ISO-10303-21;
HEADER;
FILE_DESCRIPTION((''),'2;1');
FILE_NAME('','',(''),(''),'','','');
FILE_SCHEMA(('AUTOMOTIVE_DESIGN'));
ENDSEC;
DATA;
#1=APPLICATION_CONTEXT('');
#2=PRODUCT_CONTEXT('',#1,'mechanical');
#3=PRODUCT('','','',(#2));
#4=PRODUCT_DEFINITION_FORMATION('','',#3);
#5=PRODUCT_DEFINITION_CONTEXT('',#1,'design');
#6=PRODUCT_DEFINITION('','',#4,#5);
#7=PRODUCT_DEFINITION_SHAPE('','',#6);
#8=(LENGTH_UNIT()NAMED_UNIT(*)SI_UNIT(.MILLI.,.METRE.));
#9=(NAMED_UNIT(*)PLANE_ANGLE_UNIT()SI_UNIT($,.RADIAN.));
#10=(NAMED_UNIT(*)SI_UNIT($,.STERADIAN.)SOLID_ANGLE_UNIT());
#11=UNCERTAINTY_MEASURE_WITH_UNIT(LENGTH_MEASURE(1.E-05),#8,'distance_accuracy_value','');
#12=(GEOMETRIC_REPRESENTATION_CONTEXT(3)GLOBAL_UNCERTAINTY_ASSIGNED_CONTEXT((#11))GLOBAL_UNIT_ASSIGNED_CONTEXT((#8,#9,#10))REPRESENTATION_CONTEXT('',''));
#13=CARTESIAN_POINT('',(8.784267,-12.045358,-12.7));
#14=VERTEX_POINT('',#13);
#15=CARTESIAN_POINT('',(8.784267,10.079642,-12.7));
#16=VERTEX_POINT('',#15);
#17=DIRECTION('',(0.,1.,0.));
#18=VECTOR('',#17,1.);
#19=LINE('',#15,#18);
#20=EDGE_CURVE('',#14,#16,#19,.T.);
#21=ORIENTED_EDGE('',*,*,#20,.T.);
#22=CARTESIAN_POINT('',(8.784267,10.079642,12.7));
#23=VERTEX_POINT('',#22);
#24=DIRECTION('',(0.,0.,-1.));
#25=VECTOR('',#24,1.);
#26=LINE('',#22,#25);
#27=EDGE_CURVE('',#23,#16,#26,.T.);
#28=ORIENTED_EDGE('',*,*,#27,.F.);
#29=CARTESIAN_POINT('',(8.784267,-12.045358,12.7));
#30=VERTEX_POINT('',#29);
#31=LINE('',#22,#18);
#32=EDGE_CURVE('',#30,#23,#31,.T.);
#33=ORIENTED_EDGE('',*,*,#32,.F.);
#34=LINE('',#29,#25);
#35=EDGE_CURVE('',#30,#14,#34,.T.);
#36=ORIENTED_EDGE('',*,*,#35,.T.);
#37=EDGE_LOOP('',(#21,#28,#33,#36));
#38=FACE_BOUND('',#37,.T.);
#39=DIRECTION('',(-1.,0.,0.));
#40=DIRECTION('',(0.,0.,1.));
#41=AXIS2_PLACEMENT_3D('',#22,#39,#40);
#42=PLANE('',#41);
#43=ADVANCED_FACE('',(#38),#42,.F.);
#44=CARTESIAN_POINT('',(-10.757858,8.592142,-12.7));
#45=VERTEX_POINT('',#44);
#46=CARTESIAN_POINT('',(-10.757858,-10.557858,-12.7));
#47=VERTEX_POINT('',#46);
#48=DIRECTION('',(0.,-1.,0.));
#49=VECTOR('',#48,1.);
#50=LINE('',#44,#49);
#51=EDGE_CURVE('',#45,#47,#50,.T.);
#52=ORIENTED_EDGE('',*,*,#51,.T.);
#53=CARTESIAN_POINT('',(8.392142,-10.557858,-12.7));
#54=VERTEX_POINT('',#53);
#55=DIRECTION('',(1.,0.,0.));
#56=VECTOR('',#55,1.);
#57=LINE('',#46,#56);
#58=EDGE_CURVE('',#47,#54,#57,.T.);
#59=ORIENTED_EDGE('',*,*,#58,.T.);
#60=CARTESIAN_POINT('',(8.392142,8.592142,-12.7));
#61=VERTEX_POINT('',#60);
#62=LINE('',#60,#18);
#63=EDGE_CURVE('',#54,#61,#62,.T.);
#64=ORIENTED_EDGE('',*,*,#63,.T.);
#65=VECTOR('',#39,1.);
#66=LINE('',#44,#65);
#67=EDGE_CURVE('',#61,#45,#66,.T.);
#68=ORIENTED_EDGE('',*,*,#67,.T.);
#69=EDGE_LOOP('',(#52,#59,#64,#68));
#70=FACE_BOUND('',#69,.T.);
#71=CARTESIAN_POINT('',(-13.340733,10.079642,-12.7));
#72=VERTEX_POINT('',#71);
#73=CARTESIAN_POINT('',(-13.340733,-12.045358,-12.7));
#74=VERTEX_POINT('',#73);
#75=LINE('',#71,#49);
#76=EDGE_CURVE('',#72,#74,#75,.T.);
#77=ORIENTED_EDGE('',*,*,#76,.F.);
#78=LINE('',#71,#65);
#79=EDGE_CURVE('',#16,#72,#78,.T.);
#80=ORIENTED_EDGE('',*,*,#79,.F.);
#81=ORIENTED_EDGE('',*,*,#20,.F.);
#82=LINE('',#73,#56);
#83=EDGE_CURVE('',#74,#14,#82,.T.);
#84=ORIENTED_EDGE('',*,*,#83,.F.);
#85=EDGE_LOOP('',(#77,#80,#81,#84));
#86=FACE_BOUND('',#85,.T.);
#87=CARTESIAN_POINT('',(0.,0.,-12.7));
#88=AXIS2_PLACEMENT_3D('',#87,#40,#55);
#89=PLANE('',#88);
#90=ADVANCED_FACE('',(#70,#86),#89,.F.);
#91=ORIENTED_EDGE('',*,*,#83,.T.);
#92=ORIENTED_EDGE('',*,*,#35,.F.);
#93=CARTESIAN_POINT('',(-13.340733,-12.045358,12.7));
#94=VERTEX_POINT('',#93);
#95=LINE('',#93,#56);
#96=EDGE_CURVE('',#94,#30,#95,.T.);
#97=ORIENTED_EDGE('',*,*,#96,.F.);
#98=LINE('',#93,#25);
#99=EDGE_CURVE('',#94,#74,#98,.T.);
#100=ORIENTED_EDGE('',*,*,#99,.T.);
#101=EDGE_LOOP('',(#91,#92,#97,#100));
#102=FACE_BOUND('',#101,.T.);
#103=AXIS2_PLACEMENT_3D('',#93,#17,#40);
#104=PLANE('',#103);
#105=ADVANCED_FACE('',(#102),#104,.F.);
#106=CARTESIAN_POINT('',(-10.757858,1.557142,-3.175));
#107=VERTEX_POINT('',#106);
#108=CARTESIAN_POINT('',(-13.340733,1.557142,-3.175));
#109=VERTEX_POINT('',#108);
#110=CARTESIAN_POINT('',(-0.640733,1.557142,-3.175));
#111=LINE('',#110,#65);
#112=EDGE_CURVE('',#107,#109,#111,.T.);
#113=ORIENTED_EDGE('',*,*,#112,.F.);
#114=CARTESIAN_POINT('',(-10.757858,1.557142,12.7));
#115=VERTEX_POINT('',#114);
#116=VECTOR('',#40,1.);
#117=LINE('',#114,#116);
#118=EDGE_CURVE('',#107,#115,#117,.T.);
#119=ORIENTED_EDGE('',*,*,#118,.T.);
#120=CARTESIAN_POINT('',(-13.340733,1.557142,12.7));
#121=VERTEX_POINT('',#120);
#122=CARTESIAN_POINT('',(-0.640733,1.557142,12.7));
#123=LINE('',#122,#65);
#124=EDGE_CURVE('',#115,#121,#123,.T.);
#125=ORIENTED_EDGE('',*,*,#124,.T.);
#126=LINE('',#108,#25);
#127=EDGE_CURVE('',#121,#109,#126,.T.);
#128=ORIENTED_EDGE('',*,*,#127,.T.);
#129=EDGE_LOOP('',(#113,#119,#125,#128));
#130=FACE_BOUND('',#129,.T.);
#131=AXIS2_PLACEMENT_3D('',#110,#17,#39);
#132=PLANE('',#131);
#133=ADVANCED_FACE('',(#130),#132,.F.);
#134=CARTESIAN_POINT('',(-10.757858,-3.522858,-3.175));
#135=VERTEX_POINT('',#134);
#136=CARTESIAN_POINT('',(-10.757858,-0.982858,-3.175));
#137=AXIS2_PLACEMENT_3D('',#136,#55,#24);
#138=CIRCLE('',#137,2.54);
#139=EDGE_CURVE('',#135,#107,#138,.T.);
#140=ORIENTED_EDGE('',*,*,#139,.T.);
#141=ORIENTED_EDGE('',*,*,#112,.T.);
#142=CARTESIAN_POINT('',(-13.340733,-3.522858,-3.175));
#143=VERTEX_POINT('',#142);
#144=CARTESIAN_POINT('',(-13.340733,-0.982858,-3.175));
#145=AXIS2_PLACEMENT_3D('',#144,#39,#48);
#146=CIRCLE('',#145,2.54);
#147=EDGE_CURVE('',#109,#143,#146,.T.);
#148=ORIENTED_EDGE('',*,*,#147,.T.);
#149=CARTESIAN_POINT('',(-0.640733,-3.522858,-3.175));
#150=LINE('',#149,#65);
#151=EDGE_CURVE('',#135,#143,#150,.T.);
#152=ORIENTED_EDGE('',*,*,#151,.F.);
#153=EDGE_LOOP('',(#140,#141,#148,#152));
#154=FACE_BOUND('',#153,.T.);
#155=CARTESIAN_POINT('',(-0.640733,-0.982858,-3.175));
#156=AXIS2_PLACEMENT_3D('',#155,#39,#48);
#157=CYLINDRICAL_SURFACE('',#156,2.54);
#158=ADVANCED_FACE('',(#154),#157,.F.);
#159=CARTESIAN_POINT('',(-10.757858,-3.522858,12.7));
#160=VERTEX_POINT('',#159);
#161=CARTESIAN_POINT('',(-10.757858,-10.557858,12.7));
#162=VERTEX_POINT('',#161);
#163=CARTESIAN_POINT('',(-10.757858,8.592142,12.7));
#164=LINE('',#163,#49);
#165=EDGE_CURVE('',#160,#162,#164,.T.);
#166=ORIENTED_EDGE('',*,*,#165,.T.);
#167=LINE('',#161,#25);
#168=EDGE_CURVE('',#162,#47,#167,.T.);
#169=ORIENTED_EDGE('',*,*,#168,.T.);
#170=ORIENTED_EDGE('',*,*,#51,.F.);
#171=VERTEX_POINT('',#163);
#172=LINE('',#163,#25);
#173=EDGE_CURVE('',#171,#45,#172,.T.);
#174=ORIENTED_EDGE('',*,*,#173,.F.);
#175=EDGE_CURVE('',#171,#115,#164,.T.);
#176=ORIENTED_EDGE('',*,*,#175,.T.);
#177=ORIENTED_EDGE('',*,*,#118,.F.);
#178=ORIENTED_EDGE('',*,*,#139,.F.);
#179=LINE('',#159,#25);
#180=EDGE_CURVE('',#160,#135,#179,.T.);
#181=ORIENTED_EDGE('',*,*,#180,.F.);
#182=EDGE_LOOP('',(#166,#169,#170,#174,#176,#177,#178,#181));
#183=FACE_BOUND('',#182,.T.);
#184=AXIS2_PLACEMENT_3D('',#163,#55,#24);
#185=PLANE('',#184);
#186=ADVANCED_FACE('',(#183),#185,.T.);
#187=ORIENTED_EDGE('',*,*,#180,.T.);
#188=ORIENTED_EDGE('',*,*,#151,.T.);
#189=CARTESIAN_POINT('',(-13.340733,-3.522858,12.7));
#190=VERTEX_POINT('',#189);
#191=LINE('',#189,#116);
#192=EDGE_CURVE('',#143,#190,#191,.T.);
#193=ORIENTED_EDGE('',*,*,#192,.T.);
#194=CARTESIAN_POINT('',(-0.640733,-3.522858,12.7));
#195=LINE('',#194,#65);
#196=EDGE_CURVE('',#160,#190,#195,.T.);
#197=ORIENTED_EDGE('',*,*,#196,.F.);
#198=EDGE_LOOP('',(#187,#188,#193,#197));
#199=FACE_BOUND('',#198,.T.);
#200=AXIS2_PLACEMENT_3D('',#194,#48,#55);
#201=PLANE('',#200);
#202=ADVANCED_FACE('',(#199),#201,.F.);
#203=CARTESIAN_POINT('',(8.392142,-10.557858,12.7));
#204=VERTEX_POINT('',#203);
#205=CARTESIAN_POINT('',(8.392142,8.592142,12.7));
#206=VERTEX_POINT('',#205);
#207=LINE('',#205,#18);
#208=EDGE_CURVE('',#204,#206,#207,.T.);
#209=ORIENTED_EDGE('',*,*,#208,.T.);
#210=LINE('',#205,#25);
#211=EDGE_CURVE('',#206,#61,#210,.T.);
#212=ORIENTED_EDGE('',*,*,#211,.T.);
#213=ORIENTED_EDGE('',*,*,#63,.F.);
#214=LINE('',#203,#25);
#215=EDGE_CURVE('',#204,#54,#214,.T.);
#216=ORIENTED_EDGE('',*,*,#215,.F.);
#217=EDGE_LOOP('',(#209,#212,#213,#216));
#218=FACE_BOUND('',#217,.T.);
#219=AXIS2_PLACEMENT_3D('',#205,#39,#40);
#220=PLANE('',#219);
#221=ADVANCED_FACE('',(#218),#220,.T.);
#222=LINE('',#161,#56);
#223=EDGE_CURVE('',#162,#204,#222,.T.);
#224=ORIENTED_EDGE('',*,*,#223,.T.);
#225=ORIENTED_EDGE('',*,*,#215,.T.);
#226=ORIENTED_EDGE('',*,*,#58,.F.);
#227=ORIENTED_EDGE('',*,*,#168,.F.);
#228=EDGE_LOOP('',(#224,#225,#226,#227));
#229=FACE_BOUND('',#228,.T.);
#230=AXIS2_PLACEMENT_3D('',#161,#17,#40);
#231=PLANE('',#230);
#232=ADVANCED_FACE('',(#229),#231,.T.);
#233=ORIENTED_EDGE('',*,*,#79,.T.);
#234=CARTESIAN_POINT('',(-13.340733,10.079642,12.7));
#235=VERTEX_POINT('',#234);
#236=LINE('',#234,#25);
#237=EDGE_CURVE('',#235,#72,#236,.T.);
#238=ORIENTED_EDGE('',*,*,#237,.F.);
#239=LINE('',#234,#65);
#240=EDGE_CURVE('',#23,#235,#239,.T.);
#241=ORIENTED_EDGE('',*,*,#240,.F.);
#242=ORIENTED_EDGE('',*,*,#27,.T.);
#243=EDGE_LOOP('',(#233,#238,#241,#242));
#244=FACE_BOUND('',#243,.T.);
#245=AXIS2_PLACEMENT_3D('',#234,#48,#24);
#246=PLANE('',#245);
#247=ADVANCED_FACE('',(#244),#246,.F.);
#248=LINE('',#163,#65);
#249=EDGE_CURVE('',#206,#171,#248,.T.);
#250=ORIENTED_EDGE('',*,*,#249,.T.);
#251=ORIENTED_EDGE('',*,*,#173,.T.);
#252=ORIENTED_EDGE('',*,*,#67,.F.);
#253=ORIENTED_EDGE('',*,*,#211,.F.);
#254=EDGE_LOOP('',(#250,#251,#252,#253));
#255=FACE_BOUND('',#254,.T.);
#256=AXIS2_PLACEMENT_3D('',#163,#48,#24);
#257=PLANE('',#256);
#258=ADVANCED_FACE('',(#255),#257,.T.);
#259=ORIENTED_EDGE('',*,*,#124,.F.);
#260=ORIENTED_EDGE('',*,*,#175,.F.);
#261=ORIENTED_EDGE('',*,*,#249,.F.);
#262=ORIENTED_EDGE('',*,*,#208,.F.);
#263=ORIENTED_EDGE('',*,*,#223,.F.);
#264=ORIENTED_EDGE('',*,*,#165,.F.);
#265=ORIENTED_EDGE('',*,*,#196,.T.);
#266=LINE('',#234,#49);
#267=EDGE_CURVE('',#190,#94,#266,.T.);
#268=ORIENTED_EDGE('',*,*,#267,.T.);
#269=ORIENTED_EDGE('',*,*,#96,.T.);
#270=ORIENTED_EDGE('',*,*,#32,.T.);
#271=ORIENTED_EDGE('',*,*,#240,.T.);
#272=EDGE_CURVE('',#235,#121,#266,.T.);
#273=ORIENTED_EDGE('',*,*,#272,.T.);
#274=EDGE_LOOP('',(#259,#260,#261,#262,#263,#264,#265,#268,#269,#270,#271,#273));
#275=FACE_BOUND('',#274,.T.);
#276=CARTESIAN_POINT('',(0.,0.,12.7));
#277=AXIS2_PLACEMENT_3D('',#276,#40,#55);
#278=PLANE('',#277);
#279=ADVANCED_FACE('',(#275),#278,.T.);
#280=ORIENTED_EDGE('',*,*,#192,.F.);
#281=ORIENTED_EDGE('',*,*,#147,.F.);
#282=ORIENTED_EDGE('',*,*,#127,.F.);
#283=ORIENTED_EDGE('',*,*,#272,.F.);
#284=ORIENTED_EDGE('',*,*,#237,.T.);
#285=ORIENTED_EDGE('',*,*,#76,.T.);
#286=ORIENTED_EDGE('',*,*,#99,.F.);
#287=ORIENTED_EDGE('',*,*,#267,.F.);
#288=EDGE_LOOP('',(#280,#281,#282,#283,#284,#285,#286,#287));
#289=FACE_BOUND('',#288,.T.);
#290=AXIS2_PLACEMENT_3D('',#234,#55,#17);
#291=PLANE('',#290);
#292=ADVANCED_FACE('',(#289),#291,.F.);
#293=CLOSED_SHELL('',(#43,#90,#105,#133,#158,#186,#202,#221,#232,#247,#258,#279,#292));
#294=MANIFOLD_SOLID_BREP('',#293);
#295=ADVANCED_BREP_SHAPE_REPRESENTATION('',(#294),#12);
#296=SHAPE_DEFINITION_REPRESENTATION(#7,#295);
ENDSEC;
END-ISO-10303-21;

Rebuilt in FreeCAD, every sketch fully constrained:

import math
import FreeCAD as App
import Part
import Sketcher
Q = App.Units.Quantity


def add_polygon(sketch, points):
    """Adds a closed chain of lines whose ends are joined by coincident constraints."""
    first, n = sketch.GeometryCount, len(points)
    for a, b in zip(points, points[1:] + points[:1]):
        sketch.addGeometry(Part.LineSegment(App.Vector(*a, 0), App.Vector(*b, 0)), False)
    for i in range(n):
        sketch.addConstraint(Sketcher.Constraint("Coincident", first + i, 2, first + (i + 1) % n, 1))

doc = App.newDocument("Part")
params = doc.addObject("Spreadsheet::Sheet", "Params")
for row, (alias, value) in enumerate([
    ("pad1_length", "1 in"),
    ("sketch2_radius", "0.1 in"),
    ("sketch2_height", "0.625 in"),
    ("pocket1_length", "0.5 in"),
], start=1):
    params.set(f"A{row}", alias)
    params.set(f"B{row}", "=" + value)
    params.setAlias(f"B{row}", alias)

body = doc.addObject("PartDesign::Body", "Body")

# Sketch on XY plane
sketch1 = doc.addObject("Sketcher::SketchObject", "Sketch")
body.addObject(sketch1)
sketch1.AttachmentSupport = (doc.XY_Plane, [""])
sketch1.MapMode = "FlatFace"
add_polygon(sketch1, [(-13, 10), (-13, -12), (9, -12), (9, 10)])  # lines 0-3
add_polygon(sketch1, [(8, -11), (-11, -11), (-11, 9), (8, 9)])  # lines 4-7
sketch1.addConstraint([
    Sketcher.Constraint("Vertical", 0),
    Sketcher.Constraint("Horizontal", 1),
    Sketcher.Constraint("Vertical", 2),
    Sketcher.Constraint("Horizontal", 3),
    Sketcher.Constraint("Horizontal", 4),
    Sketcher.Constraint("Vertical", 5),
    Sketcher.Constraint("Horizontal", 6),
    Sketcher.Constraint("Vertical", 7),
    Sketcher.Constraint("Equal", 3, 0),
    Sketcher.Constraint("Equal", 6, 5),
    Sketcher.Constraint("DistanceY", 4, 2, 3, 2, Q("0.8125 in")),
    Sketcher.Constraint("DistanceY", 0, 2, 5, 2, Q("0.8125 in")),
    Sketcher.Constraint("DistanceX", 1, 1, 1, 2, 22.125),
    Sketcher.Constraint("DistanceX", 0, 2, -1, 1, 13.340733),
    Sketcher.Constraint("DistanceY", 0, 2, -1, 1, 12.045358),
    Sketcher.Constraint("DistanceX", 4, 2, -1, 1, 10.757858),
])
pad1 = doc.addObject("PartDesign::Pad", "Pad")
body.addObject(pad1)
pad1.Profile = sketch1
pad1.setExpression("Length", "Params.pad1_length")
pad1.Midplane = True

# Sketch on YZ plane
sketch2 = doc.addObject("Sketcher::SketchObject", "Sketch001")
body.addObject(sketch2)
sketch2.AttachmentSupport = (doc.YZ_Plane, [""])
sketch2.MapMode = "FlatFace"
sketch2.AttachmentOffset = App.Placement(App.Vector(0, 0, -13.340733), App.Rotation())
sketch2.addGeometry([
    Part.LineSegment(App.Vector(1.6, 12.7, 0), App.Vector(1.6, -3.2, 0)),
    Part.ArcOfCircle(Part.Circle(App.Vector(-1, -3.2, 0), App.Vector(0, 0, 1), 2.5), math.radians(180), math.radians(360)),
    Part.LineSegment(App.Vector(-3.5, -3.2, 0), App.Vector(-3.5, 12.7, 0)),
    Part.LineSegment(App.Vector(-3.5, 12.7, 0), App.Vector(1.6, 12.7, 0)),
], False)
sketch2.addConstraint([
    Sketcher.Constraint("Tangent", 0, 2, 1, 2),
    Sketcher.Constraint("Tangent", 1, 1, 2, 1),
    Sketcher.Constraint("Coincident", 2, 2, 3, 1),
    Sketcher.Constraint("Coincident", 3, 2, 0, 1),
    Sketcher.Constraint("Vertical", 0),
    Sketcher.Constraint("Vertical", 2),
    Sketcher.Constraint("Horizontal", 3),
    Sketcher.Constraint("Radius", 1, Q("0.1 in")),
    Sketcher.Constraint("DistanceY", -1, 1, 2, 2, Q("0.5 in")),
    Sketcher.Constraint("DistanceY", 0, 2, 0, 1, Q("0.625 in")),
    Sketcher.Constraint("DistanceX", 1, 3, -1, 1, 0.982858),
])
sketch2.setExpression("Constraints[7]", "Params.sketch2_radius")
sketch2.setExpression("Constraints[9]", "Params.sketch2_height")
pocket1 = doc.addObject("PartDesign::Pocket", "Pocket")
body.addObject(pocket1)
pocket1.Profile = sketch2
pocket1.setExpression("Length", "Params.pocket1_length")
pocket1.Reversed = True

doc.recompute()
